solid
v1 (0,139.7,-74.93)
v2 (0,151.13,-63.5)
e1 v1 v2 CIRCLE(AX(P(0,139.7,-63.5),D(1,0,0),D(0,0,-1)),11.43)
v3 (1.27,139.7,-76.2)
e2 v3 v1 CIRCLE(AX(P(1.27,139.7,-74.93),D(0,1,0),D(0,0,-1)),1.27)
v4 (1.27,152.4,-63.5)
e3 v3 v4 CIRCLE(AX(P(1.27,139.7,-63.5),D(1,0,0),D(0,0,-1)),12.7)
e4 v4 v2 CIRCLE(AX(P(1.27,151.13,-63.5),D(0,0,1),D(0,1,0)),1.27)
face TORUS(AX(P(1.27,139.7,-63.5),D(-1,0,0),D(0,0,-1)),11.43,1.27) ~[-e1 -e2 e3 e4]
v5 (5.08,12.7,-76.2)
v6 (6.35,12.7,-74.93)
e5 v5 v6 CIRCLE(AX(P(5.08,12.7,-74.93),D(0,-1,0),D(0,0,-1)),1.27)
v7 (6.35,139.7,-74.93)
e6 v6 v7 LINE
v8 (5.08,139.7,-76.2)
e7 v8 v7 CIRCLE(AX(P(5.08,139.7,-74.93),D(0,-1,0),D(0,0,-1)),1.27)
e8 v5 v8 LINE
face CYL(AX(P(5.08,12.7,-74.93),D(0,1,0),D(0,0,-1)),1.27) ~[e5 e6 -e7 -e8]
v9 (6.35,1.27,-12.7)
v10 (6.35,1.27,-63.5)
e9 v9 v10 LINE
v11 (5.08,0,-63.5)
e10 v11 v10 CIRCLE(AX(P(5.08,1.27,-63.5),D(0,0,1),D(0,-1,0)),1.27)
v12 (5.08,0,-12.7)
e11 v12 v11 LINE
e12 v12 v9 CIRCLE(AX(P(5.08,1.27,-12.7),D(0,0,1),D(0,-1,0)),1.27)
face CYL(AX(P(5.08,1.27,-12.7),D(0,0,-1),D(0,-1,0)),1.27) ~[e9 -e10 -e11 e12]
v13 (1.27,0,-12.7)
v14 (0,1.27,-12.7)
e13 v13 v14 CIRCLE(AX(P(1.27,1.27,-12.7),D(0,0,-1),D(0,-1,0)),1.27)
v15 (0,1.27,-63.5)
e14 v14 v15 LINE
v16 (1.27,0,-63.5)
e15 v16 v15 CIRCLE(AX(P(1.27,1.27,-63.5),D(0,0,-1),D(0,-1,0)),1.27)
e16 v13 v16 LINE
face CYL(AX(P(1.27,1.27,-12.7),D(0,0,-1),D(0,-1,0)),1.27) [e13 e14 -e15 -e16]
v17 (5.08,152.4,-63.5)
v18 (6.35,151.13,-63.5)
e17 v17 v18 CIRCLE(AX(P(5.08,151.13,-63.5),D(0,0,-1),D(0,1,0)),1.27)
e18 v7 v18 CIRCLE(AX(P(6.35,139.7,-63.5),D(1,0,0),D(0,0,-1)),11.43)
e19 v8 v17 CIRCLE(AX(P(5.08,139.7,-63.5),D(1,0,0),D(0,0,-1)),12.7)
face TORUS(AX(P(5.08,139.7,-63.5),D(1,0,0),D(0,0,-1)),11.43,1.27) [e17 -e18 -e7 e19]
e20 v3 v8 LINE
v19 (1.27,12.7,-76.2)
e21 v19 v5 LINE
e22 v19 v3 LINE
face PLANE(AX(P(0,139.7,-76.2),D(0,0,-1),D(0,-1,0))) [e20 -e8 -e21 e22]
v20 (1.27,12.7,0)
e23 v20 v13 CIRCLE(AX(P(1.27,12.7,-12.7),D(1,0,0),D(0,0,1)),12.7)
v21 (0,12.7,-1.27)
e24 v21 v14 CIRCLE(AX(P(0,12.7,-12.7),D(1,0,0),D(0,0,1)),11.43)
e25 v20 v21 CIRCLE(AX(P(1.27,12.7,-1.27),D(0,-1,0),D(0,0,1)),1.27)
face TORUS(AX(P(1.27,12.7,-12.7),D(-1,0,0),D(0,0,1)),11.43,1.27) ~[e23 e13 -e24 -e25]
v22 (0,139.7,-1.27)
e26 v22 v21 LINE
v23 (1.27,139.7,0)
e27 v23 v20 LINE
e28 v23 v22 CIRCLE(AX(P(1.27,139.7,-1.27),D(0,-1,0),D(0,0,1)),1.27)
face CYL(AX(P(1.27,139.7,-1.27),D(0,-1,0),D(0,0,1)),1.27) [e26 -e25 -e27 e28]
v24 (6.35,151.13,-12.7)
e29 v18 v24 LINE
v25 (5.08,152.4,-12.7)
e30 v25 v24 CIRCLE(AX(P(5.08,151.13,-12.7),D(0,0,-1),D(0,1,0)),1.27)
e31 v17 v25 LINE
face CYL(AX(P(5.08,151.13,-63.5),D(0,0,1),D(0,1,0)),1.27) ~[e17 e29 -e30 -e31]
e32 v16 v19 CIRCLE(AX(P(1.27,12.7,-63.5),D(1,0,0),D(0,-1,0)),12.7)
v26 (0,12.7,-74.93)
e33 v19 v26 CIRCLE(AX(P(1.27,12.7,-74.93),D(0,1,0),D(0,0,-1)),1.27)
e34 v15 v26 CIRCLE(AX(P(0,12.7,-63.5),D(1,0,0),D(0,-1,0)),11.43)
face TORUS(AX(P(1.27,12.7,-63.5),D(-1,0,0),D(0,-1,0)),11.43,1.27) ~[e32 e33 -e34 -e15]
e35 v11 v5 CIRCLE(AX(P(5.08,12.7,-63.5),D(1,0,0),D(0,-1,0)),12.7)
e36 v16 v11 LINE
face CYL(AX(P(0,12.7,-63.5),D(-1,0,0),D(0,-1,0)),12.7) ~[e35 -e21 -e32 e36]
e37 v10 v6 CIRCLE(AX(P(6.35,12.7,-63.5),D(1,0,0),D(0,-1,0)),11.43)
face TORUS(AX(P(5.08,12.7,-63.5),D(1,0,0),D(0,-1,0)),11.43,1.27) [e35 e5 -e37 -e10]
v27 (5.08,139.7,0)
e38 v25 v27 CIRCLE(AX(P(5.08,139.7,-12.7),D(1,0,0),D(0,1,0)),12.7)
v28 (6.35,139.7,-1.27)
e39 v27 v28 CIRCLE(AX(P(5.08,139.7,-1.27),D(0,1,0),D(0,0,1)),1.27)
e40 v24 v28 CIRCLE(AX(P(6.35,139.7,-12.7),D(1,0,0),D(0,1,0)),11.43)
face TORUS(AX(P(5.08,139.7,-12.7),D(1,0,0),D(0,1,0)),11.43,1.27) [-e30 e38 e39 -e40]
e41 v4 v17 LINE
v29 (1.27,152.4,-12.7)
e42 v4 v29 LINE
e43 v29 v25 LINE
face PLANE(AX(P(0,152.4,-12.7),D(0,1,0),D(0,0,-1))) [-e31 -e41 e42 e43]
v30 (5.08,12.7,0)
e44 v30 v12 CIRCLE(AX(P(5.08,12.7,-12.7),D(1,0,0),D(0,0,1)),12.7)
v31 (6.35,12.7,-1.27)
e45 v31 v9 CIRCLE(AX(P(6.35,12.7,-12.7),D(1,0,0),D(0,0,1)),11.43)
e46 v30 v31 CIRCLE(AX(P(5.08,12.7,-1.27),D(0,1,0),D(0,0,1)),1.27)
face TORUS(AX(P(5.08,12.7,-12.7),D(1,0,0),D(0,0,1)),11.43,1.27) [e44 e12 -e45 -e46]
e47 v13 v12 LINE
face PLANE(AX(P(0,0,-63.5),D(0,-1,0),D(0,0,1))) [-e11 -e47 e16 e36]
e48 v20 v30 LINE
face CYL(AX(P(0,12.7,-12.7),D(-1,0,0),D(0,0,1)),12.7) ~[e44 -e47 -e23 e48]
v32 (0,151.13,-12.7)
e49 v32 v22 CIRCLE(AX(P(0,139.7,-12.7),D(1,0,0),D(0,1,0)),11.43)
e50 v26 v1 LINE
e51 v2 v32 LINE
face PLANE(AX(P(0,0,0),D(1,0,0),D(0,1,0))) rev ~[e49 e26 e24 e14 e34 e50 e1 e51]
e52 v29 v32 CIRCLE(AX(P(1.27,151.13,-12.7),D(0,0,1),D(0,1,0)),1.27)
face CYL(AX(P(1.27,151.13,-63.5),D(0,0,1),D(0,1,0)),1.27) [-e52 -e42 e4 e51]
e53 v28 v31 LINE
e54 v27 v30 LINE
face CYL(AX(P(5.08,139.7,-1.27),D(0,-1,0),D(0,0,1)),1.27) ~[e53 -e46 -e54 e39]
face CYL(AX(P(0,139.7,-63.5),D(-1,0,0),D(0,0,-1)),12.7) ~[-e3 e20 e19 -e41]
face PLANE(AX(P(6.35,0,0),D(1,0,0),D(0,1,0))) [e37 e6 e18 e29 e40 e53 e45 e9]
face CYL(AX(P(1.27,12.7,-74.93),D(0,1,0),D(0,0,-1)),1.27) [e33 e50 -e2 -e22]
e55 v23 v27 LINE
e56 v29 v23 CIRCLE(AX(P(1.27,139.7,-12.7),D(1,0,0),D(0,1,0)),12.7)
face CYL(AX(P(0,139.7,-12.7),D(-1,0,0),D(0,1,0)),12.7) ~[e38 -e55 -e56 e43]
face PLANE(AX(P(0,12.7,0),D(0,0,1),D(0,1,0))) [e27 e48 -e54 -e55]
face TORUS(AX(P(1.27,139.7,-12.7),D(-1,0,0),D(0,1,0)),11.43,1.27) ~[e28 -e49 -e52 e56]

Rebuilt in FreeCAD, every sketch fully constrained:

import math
import FreeCAD as App
import Part
import Sketcher
from FreeCAD import Vector
Q = App.Units.Quantity


def edges_at(feature, points):
    """Names of the edges that pass closest to the given points."""
    edges = feature.Shape.Edges
    near = lambda p: min(range(len(edges)), key=lambda i: edges[i].distToShape(Part.Vertex(*p))[0])
    return sorted({f"Edge{near(p) + 1}" for p in points})

doc = App.newDocument("Part")
body = doc.addObject("PartDesign::Body", "Body")

# Sketch on YZ plane
sketch1 = doc.addObject("Sketcher::SketchObject", "Sketch")
body.addObject(sketch1)
sketch1.AttachmentSupport = (doc.YZ_Plane, [""])
sketch1.MapMode = "FlatFace"
sketch1.addGeometry([
    Part.LineSegment(Vector(140, 0, 0), Vector(13, 0, 0)),  # 0
    Part.ArcOfCircle(Part.Circle(Vector(13, -13, 0), Vector(0, 0, 1), 13), math.radians(90), math.radians(180)),  # 1
    Part.LineSegment(Vector(0, -13, 0), Vector(0, -64, 0)),  # 2
    Part.ArcOfCircle(Part.Circle(Vector(13, -64, 0), Vector(0, 0, 1), 13), math.radians(180), math.radians(270)),  # 3
    Part.LineSegment(Vector(13, -76, 0), Vector(140, -76, 0)),  # 4
    Part.ArcOfCircle(Part.Circle(Vector(140, -64, 0), Vector(0, 0, 1), 13), math.radians(-90), math.radians(0)),  # 5
    Part.LineSegment(Vector(152, -64, 0), Vector(152, -13, 0)),  # 6
    Part.ArcOfCircle(Part.Circle(Vector(140, -13, 0), Vector(0, 0, 1), 13), math.radians(0), math.radians(90)),  # 7
], False)
sketch1.addConstraint([
    Sketcher.Constraint("Tangent", 0, 2, 1, 1),
    Sketcher.Constraint("Tangent", 1, 2, 2, 1),
    Sketcher.Constraint("Tangent", 2, 2, 3, 1),
    Sketcher.Constraint("Tangent", 3, 2, 4, 1),
    Sketcher.Constraint("Tangent", 4, 2, 5, 1),
    Sketcher.Constraint("Tangent", 5, 2, 6, 1),
    Sketcher.Constraint("Tangent", 6, 2, 7, 1),
    Sketcher.Constraint("Tangent", 7, 2, 0, 1),
    Sketcher.Constraint("Horizontal", 0),
    Sketcher.Constraint("Vertical", 2),
    Sketcher.Constraint("Horizontal", 4),
    Sketcher.Constraint("Vertical", 6),
    Sketcher.Constraint("Equal", 1, 3),
    Sketcher.Constraint("Equal", 3, 5),
    Sketcher.Constraint("Equal", 5, 7),
    Sketcher.Constraint("PointOnObject", 0, 2, -1),
    Sketcher.Constraint("PointOnObject", 1, 2, -2),
    Sketcher.Constraint("Radius", 1, Q("0.5 in")),
    Sketcher.Constraint("DistanceY", 3, 2, -1, 1, Q("3 in")),
    Sketcher.Constraint("DistanceX", -1, 1, 5, 2, Q("6 in")),
])
pad1 = doc.addObject("PartDesign::Pad", "Pad")
body.addObject(pad1)
pad1.Profile = sketch1
pad1.Length = Q("0.25 in")
doc.recompute()

fillet = doc.addObject("PartDesign::Fillet", "Fillet")
body.addObject(fillet)
fillet.Base = (pad1, edges_at(pad1, [
    (6.35, 3.72, -3.72),
    (6.35, 0, -38.1),
    (6.35, 3.72, -72.48),
    (6.35, 76.2, -76.2),
    (6.35, 148.68, -72.48),
    (6.35, 152.4, -38.1),
    (6.35, 148.68, -3.72),
    (6.35, 76.2, 0),
    (0, 3.72, -3.72),
    (0, 0, -38.1),
    (0, 3.72, -72.48),
    (0, 76.2, -76.2),
    (0, 148.68, -72.48),
    (0, 152.4, -38.1),
    (0, 148.68, -3.72),
    (0, 76.2, 0),
]))
fillet.Radius = Q("0.05 in")

doc.recompute()
